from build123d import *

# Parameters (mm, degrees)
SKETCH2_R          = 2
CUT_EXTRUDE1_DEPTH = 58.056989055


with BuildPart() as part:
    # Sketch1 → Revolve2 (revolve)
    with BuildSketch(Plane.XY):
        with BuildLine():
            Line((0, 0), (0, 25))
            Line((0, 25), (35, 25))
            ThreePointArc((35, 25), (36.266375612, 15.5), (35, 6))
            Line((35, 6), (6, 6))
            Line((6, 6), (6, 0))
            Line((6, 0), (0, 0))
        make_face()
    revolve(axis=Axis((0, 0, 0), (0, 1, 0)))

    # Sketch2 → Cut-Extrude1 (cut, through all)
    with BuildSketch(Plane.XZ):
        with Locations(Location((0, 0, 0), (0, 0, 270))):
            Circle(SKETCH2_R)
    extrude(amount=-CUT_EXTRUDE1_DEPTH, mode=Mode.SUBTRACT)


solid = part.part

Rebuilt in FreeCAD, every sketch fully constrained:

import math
import FreeCAD as App
import Part
import Sketcher

V = App.Vector
Q = App.Units.Quantity

doc = App.newDocument("Part")
body = doc.addObject("PartDesign::Body", "Body")

# Sketch on XY plane
sketch1 = body.newObject("Sketcher::SketchObject", "Sketch")
sketch1.AttachmentSupport = (doc.getObject("XY_Plane"), [""])
sketch1.MapMode = "FlatFace"
sketch1.addGeometry([
    Part.LineSegment(V(0, 25, 0), V(0, 0, 0)),  # 0
    Part.LineSegment(V(0, 0, 0), V(6, 0, 0)),  # 1
    Part.LineSegment(V(6, 0, 0), V(6, 6, 0)),  # 2
    Part.LineSegment(V(6, 6, 0), V(35, 6, 0)),  # 3
    Part.ArcOfCircle(Part.Circle(V(0, 16, 0), V(0, 0, 1), 36), math.radians(-15), math.radians(15)),  # 4
    Part.LineSegment(V(35, 25, 0), V(0, 25, 0)),  # 5
], False)
sketch1.addConstraint([
    Sketcher.Constraint("Coincident", 0, 2, 1, 1),
    Sketcher.Constraint("Coincident", 1, 2, 2, 1),
    Sketcher.Constraint("Coincident", 2, 2, 3, 1),
    Sketcher.Constraint("Coincident", 3, 2, 4, 1),
    Sketcher.Constraint("Coincident", 4, 2, 5, 1),
    Sketcher.Constraint("Coincident", 5, 2, 0, 1),
    Sketcher.Constraint("Vertical", 0),
    Sketcher.Constraint("Horizontal", 1),
    Sketcher.Constraint("Vertical", 2),
    Sketcher.Constraint("Horizontal", 3),
    Sketcher.Constraint("Horizontal", 5),
    Sketcher.Constraint("Coincident", 0, 2, -1, 1),
    Sketcher.Constraint("PointOnObject", 4, 3, -2),
    Sketcher.Constraint("Vertical", 3, 2, 4, 2),
    Sketcher.Constraint("Equal", 1, 2),
    Sketcher.Constraint("DistanceX", 1, 1, 1, 2, Q("6 mm")),
    Sketcher.Constraint("DistanceX", 3, 1, 3, 2, Q("29 mm")),
    Sketcher.Constraint("DistanceY", 0, 2, 0, 1, Q("25 mm")),
])
revolution = body.newObject("PartDesign::Revolution", "Revolution")
revolution.Profile = sketch1
revolution.ReferenceAxis = (sketch1, ["V_Axis"])
revolution.Angle = 360

# Sketch on XZ plane
sketch2 = body.newObject("Sketcher::SketchObject", "Sketch001")
sketch2.AttachmentSupport = (doc.getObject("XZ_Plane"), [""])
sketch2.MapMode = "FlatFace"
sketch2.addGeometry(Part.Circle(V(0, 0, 0), V(0, 0, 1), 2), False)
sketch2.addConstraint([
    Sketcher.Constraint("Coincident", 0, 3, -1, 1),
    Sketcher.Constraint("Diameter", 0, Q("4 mm")),
])
pocket1 = body.newObject("PartDesign::Pocket", "Pocket")
pocket1.Profile = sketch2
pocket1.Type = "ThroughAll"

doc.recompute()
